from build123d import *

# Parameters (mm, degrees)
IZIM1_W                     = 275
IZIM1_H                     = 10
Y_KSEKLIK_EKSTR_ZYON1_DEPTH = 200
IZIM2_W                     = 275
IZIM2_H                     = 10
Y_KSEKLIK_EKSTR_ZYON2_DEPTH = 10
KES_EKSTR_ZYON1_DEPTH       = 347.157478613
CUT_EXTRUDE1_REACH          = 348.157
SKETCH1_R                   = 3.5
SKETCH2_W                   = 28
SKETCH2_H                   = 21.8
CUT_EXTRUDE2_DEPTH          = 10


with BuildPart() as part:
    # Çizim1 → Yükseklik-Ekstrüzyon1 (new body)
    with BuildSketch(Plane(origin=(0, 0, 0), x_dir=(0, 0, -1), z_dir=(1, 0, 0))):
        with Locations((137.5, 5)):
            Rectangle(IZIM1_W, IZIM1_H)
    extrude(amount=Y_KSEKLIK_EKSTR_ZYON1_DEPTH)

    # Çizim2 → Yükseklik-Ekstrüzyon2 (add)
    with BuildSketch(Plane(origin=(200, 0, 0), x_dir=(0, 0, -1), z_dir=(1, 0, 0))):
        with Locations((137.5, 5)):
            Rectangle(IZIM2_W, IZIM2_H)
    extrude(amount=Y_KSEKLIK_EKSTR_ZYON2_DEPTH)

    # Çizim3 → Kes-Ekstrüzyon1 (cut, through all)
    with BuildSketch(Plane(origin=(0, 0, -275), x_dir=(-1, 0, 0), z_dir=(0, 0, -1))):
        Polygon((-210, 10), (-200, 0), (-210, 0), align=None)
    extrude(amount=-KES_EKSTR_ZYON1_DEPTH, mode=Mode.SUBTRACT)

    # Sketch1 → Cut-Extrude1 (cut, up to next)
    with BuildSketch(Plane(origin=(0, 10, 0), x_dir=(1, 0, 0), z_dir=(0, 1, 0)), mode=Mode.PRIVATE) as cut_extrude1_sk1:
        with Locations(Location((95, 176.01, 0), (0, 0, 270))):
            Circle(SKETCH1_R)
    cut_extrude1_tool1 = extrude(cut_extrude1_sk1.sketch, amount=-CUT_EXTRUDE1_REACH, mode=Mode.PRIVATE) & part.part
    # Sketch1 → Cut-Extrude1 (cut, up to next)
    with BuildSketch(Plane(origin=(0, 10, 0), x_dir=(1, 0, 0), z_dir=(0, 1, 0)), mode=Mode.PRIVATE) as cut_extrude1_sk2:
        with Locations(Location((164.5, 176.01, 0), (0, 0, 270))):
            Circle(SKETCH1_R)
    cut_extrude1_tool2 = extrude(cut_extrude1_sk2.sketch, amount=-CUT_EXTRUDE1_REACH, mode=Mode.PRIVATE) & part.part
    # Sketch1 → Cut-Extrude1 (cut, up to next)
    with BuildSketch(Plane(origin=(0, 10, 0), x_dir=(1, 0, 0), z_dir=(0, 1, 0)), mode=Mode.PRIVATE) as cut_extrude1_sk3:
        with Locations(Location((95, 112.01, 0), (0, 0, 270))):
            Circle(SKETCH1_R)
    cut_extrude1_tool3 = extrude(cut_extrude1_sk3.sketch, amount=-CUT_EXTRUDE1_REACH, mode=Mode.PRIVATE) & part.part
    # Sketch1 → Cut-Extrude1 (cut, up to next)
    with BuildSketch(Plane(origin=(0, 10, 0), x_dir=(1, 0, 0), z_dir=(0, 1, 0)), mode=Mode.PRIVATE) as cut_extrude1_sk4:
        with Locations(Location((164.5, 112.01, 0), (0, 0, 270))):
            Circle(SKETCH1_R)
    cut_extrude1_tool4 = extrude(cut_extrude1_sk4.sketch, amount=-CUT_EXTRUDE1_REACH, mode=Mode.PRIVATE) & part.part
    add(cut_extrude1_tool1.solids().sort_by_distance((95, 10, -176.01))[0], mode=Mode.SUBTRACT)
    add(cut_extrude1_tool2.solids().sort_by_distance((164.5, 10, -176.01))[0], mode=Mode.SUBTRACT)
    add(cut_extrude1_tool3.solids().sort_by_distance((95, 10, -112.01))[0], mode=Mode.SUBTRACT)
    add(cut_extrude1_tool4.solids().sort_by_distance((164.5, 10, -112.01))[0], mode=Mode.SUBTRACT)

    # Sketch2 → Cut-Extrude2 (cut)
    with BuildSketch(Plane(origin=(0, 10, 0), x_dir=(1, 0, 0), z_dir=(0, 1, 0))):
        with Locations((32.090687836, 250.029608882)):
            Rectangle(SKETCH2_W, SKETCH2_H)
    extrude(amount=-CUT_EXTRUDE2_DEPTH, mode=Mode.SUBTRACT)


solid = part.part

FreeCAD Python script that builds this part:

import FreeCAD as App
import Part
import Sketcher
from FreeCAD import Vector
Q = App.Units.Quantity


def add_polygon(sketch, points):
    """Adds a closed chain of lines whose ends are joined by coincident constraints."""
    first, n = sketch.GeometryCount, len(points)
    for a, b in zip(points, points[1:] + points[:1]):
        sketch.addGeometry(Part.LineSegment(App.Vector(*a, 0), App.Vector(*b, 0)), False)
    for i in range(n):
        sketch.addConstraint(Sketcher.Constraint("Coincident", first + i, 2, first + (i + 1) % n, 1))

doc = App.newDocument("Part")
body = doc.addObject("PartDesign::Body", "Body")

sketch1 = doc.addObject("Sketcher::SketchObject", "Sketch")
body.addObject(sketch1)
sketch1.AttachmentSupport = (doc.YZ_Plane, [""])
sketch1.MapMode = "FlatFace"
add_polygon(sketch1, [(10, 0), (0, 0), (0, -275), (10, -275)])
sketch1.addConstraint([
    Sketcher.Constraint("Horizontal", 0),
    Sketcher.Constraint("Vertical", 1),
    Sketcher.Constraint("Horizontal", 2),
    Sketcher.Constraint("Vertical", 3),
    Sketcher.Constraint("Coincident", 0, 2, -1, 1),
    Sketcher.Constraint("DistanceX", 0, 2, 0, 1, Q("10 mm")),
    Sketcher.Constraint("DistanceY", 1, 2, 1, 1, Q("275 mm")),
])
pad1 = doc.addObject("PartDesign::Pad", "Pad")
body.addObject(pad1)
pad1.Profile = sketch1
pad1.Length = 200

sketch2 = doc.addObject("Sketcher::SketchObject", "Sketch001")
body.addObject(sketch2)
sketch2.AttachmentSupport = (doc.YZ_Plane, [""])
sketch2.MapMode = "FlatFace"
sketch2.AttachmentOffset = App.Placement(Vector(0, 0, 200), App.Rotation())
add_polygon(sketch2, [(10, 0), (0, 0), (0, -275), (10, -275)])
sketch2.addConstraint([
    Sketcher.Constraint("Horizontal", 0),
    Sketcher.Constraint("Vertical", 1),
    Sketcher.Constraint("Horizontal", 2),
    Sketcher.Constraint("Vertical", 3),
    Sketcher.Constraint("Coincident", 0, 2, -1, 1),
    Sketcher.Constraint("DistanceX", 0, 2, 0, 1, Q("10 mm")),
    Sketcher.Constraint("DistanceY", 1, 2, 1, 1, Q("275 mm")),
])
pad2 = doc.addObject("PartDesign::Pad", "Pad001")
body.addObject(pad2)
pad2.Profile = sketch2
pad2.Length = 10

sketch3 = doc.addObject("Sketcher::SketchObject", "Sketch002")
body.addObject(sketch3)
sketch3.AttachmentSupport = (doc.XY_Plane, [""])
sketch3.MapMode = "FlatFace"
sketch3.AttachmentOffset = App.Placement(Vector(0, 0, -275), App.Rotation())
add_polygon(sketch3, [(200, 0), (210, 10), (210, 0)])
sketch3.addConstraint([
    Sketcher.Constraint("Vertical", 1),
    Sketcher.Constraint("Horizontal", 2),
    Sketcher.Constraint("PointOnObject", 1, 2, -1),
    Sketcher.Constraint("Equal", 2, 1),
    Sketcher.Constraint("DistanceX", 2, 2, 2, 1, Q("10 mm")),
    Sketcher.Constraint("DistanceX", -1, 1, 0, 2, Q("210 mm")),
])
pocket1 = doc.addObject("PartDesign::Pocket", "Pocket")
body.addObject(pocket1)
pocket1.Profile = sketch3
pocket1.Type = "ThroughAll"
pocket1.Reversed = True

sketch4 = doc.addObject("Sketcher::SketchObject", "Sketch003")
body.addObject(sketch4)
sketch4.AttachmentSupport = (doc.XZ_Plane, [""])
sketch4.MapMode = "FlatFace"
sketch4.AttachmentOffset = App.Placement(Vector(0, 0, -10), App.Rotation())
sketch4.addGeometry(Part.Circle(Vector(95, -176, 0), Vector(0, 0, 1), 3.5), False)
sketch4.addConstraint([
    Sketcher.Constraint("Diameter", 0, Q("7 mm")),
    Sketcher.Constraint("DistanceX", -1, 1, 0, 3, Q("95 mm")),
    Sketcher.Constraint("DistanceY", 0, 3, -1, 1, Q("176.01 mm")),
])
pocket2 = doc.addObject("PartDesign::Pocket", "Pocket001")
body.addObject(pocket2)
pocket2.Profile = sketch4
pocket2.Type = "UpToFirst"
pocket2.Reversed = True

sketch5 = doc.addObject("Sketcher::SketchObject", "Sketch004")
body.addObject(sketch5)
sketch5.AttachmentSupport = (doc.XZ_Plane, [""])
sketch5.MapMode = "FlatFace"
sketch5.AttachmentOffset = App.Placement(Vector(0, 0, -10), App.Rotation())
sketch5.addGeometry(Part.Circle(Vector(164.5, -176, 0), Vector(0, 0, 1), 3.5), False)
sketch5.addConstraint([
    Sketcher.Constraint("Diameter", 0, Q("7 mm")),
    Sketcher.Constraint("DistanceX", -1, 1, 0, 3, Q("164.5 mm")),
    Sketcher.Constraint("DistanceY", 0, 3, -1, 1, Q("176.01 mm")),
])
pocket3 = doc.addObject("PartDesign::Pocket", "Pocket002")
body.addObject(pocket3)
pocket3.Profile = sketch5
pocket3.Type = "UpToFirst"
pocket3.Reversed = True

sketch6 = doc.addObject("Sketcher::SketchObject", "Sketch005")
body.addObject(sketch6)
sketch6.AttachmentSupport = (doc.XZ_Plane, [""])
sketch6.MapMode = "FlatFace"
sketch6.AttachmentOffset = App.Placement(Vector(0, 0, -10), App.Rotation())
sketch6.addGeometry(Part.Circle(Vector(95, -112, 0), Vector(0, 0, 1), 3.5), False)
sketch6.addConstraint([
    Sketcher.Constraint("Diameter", 0, Q("7 mm")),
    Sketcher.Constraint("DistanceX", -1, 1, 0, 3, Q("95 mm")),
    Sketcher.Constraint("DistanceY", 0, 3, -1, 1, Q("112.01 mm")),
])
pocket4 = doc.addObject("PartDesign::Pocket", "Pocket003")
body.addObject(pocket4)
pocket4.Profile = sketch6
pocket4.Type = "UpToFirst"
pocket4.Reversed = True

sketch7 = doc.addObject("Sketcher::SketchObject", "Sketch006")
body.addObject(sketch7)
sketch7.AttachmentSupport = (doc.XZ_Plane, [""])
sketch7.MapMode = "FlatFace"
sketch7.AttachmentOffset = App.Placement(Vector(0, 0, -10), App.Rotation())
sketch7.addGeometry(Part.Circle(Vector(164.5, -112, 0), Vector(0, 0, 1), 3.5), False)
sketch7.addConstraint([
    Sketcher.Constraint("Diameter", 0, Q("7 mm")),
    Sketcher.Constraint("DistanceX", -1, 1, 0, 3, Q("164.5 mm")),
    Sketcher.Constraint("DistanceY", 0, 3, -1, 1, Q("112.01 mm")),
])
pocket5 = doc.addObject("PartDesign::Pocket", "Pocket004")
body.addObject(pocket5)
pocket5.Profile = sketch7
pocket5.Type = "UpToFirst"
pocket5.Reversed = True

sketch8 = doc.addObject("Sketcher::SketchObject", "Sketch007")
body.addObject(sketch8)
sketch8.AttachmentSupport = (doc.XZ_Plane, [""])
sketch8.MapMode = "FlatFace"
sketch8.AttachmentOffset = App.Placement(Vector(0, 0, -10), App.Rotation())
add_polygon(sketch8, [(18, -261), (18, -239), (46, -239), (46, -261)])
sketch8.addConstraint([
    Sketcher.Constraint("Vertical", 0),
    Sketcher.Constraint("Horizontal", 1),
    Sketcher.Constraint("Vertical", 2),
    Sketcher.Constraint("Horizontal", 3),
    Sketcher.Constraint("DistanceX", 1, 1, 1, 2, Q("28 mm")),
    Sketcher.Constraint("DistanceY", 0, 1, 0, 2, Q("21.8 mm")),
    Sketcher.Constraint("DistanceY", 0, 2, -1, 1, Q("239.129609 mm")),
    Sketcher.Constraint("DistanceX", -1, 1, 0, 2, Q("18.090688 mm")),
])
pocket6 = doc.addObject("PartDesign::Pocket", "Pocket005")
body.addObject(pocket6)
pocket6.Profile = sketch8
pocket6.Length = 10
pocket6.Reversed = True

doc.recompute()
